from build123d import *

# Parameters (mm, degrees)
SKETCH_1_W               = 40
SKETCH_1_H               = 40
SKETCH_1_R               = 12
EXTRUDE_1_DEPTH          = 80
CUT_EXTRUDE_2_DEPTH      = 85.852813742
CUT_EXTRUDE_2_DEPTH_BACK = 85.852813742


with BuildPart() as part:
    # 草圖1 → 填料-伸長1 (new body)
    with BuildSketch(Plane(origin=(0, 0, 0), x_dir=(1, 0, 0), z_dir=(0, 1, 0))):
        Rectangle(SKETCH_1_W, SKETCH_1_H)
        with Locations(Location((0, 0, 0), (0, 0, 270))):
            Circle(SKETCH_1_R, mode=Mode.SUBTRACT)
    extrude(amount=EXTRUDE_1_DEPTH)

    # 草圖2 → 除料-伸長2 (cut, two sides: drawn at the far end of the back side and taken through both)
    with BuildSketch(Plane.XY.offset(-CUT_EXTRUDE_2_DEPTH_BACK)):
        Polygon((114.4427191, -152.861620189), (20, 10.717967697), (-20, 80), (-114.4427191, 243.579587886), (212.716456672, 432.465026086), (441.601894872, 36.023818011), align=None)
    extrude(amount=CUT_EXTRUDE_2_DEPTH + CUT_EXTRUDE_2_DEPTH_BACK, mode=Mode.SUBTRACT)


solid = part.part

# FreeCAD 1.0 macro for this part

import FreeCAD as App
import Part
import Sketcher
Q = App.Units.Quantity


def add_polygon(sketch, points):
    """Adds a closed chain of lines whose ends are joined by coincident constraints."""
    first, n = sketch.GeometryCount, len(points)
    for a, b in zip(points, points[1:] + points[:1]):
        sketch.addGeometry(Part.LineSegment(App.Vector(*a, 0), App.Vector(*b, 0)), False)
    for i in range(n):
        sketch.addConstraint(Sketcher.Constraint("Coincident", first + i, 2, first + (i + 1) % n, 1))

doc = App.newDocument("Part")
params = doc.addObject("Spreadsheet::Sheet", "Params")
for row, (alias, value) in enumerate([
    ("sketch1_diameter", "24 mm"),
    ("sketch1_width", "40 mm"),
    ("pad1_length", "80 mm"),
    ("sketch2_length", "80 mm"),
], start=1):
    params.set(f"A{row}", alias)
    params.set(f"B{row}", "=" + value)
    params.setAlias(f"B{row}", alias)

body = doc.addObject("PartDesign::Body", "Body")

# Sketch on XZ plane
sketch1 = body.newObject("Sketcher::SketchObject", "Sketch")
sketch1.AttachmentSupport = (doc.getObject("XZ_Plane"), [""])
sketch1.MapMode = "FlatFace"
add_polygon(sketch1, [(-20, -20), (-20, 20), (20, 20), (20, -20)])  # lines 0-3
sketch1.addGeometry(Part.Circle(App.Vector(0, 0, 0), App.Vector(0, 0, 1), 12), False)  # 4
sketch1.addConstraint(Sketcher.Constraint("Vertical", 0))
sketch1.addConstraint(Sketcher.Constraint("Horizontal", 1))
sketch1.addConstraint(Sketcher.Constraint("Vertical", 2))
sketch1.addConstraint(Sketcher.Constraint("Horizontal", 3))
sketch1.addConstraint(Sketcher.Constraint("Coincident", 4, 3, -1, 1))
sketch1.addConstraint(Sketcher.Constraint("Symmetric", 0, 2, 2, 2, -1, 1))
sketch1.addConstraint(Sketcher.Constraint("Equal", 3, 0))
sketch1.addConstraint(Sketcher.Constraint("Diameter", 4, Q("24 mm")))
sketch1.addConstraint(Sketcher.Constraint("DistanceX", 1, 1, 1, 2, Q("40 mm")))
sketch1.setExpression("Constraints[11]", "Params.sketch1_diameter")
sketch1.setExpression("Constraints[12]", "Params.sketch1_width")
pad1 = body.newObject("PartDesign::Pad", "Pad")
pad1.Profile = sketch1
pad1.setExpression("Length", "Params.pad1_length")
pad1.Reversed = True

# Sketch on XY plane
sketch2 = body.newObject("Sketcher::SketchObject", "Sketch001")
sketch2.AttachmentSupport = (doc.getObject("XY_Plane"), [""])
sketch2.MapMode = "FlatFace"
add_polygon(sketch2, [(20, 10.717968), (114.442719, -152.86162), (441.601895, 36.023818), (212.716457, 432.465026), (-114.442719, 243.579588), (-20, 80)])  # lines 0-5
sketch2.addConstraint(Sketcher.Constraint("Perpendicular", 0, 1))
sketch2.addConstraint(Sketcher.Constraint("Perpendicular", 1, 2))
sketch2.addConstraint(Sketcher.Constraint("Perpendicular", 2, 3))
sketch2.addConstraint(Sketcher.Constraint("Perpendicular", 3, 4))
sketch2.addConstraint(Sketcher.Constraint("Parallel", 4, 5))
sketch2.addConstraint(Sketcher.Constraint("Equal", 0, 4))
sketch2.addConstraint(Sketcher.Constraint("Angle", 0, Q("-60 deg")))
sketch2.addConstraint(Sketcher.Constraint("Distance", 5, Q("80 mm")))
sketch2.addConstraint(Sketcher.Constraint("DistanceX", 4, 2, -1, 1, Q("20 mm")))
sketch2.addConstraint(Sketcher.Constraint("DistanceY", -1, 1, 4, 2, Q("80 mm")))
sketch2.addConstraint(Sketcher.Constraint("Distance", 0, Q("188.885438 mm")))
sketch2.addConstraint(Sketcher.Constraint("DistanceY", -1, 1, 1, 2, Q("36.023818 mm")))
sketch2.setExpression("Constraints[13]", "Params.sketch2_length")
pocket1 = body.newObject("PartDesign::Pocket", "Pocket")
pocket1.Profile = sketch2
pocket1.Type = "ThroughAll"
pocket1.Midplane = True

doc.recompute()
